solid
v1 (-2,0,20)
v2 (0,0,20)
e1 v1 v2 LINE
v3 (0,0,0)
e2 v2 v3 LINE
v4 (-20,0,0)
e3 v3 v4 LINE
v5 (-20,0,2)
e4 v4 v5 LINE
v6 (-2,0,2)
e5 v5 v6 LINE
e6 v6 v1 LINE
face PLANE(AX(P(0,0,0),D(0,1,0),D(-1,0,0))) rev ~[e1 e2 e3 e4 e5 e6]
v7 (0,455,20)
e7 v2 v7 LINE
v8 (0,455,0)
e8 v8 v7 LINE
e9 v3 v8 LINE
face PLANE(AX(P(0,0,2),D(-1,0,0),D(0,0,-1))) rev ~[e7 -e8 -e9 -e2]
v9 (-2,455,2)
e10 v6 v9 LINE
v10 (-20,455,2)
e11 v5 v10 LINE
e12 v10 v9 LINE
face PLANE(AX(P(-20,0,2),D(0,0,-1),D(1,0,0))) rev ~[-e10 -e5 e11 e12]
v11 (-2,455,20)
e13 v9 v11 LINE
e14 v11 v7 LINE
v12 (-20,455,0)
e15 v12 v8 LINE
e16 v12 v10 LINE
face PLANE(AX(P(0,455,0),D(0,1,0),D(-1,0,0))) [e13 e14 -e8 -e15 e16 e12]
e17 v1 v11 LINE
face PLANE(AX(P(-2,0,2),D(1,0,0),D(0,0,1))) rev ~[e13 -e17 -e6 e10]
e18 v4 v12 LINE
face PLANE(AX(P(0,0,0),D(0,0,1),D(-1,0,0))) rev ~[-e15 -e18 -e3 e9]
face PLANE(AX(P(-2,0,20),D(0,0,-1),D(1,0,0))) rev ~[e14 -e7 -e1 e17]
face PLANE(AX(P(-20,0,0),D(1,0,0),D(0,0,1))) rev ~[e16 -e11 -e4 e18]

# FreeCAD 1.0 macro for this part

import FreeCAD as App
import Part
import Sketcher
from FreeCAD import Vector

doc = App.newDocument("Part")
body = doc.addObject("PartDesign::Body", "Body")

# Sketch on XZ plane
sketch1 = body.newObject("Sketcher::SketchObject", "Sketch")
sketch1.AttachmentSupport = (doc.getObject("XZ_Plane"), [""])
sketch1.MapMode = "FlatFace"
sketch1.addGeometry(Part.LineSegment(Vector(0, 0, 0), Vector(-20, 0, 0)), False)
sketch1.addGeometry(Part.LineSegment(Vector(-20, 0, 0), Vector(-20, 2, 0)), False)
sketch1.addGeometry(Part.LineSegment(Vector(-20, 2, 0), Vector(-2, 2, 0)), False)
sketch1.addGeometry(Part.LineSegment(Vector(-2, 2, 0), Vector(-2, 20, 0)), False)
sketch1.addGeometry(Part.LineSegment(Vector(-2, 20, 0), Vector(0, 20, 0)), False)
sketch1.addGeometry(Part.LineSegment(Vector(0, 20, 0), Vector(0, 0, 0)), False)
sketch1.addConstraint(Sketcher.Constraint("Coincident", 0, 2, 1, 1))
sketch1.addConstraint(Sketcher.Constraint("Coincident", 1, 2, 2, 1))
sketch1.addConstraint(Sketcher.Constraint("Coincident", 2, 2, 3, 1))
sketch1.addConstraint(Sketcher.Constraint("Coincident", 3, 2, 4, 1))
sketch1.addConstraint(Sketcher.Constraint("Coincident", 4, 2, 5, 1))
sketch1.addConstraint(Sketcher.Constraint("Coincident", 5, 2, 0, 1))
sketch1.addConstraint(Sketcher.Constraint("Horizontal", 0))
sketch1.addConstraint(Sketcher.Constraint("Vertical", 1))
sketch1.addConstraint(Sketcher.Constraint("Horizontal", 2))
sketch1.addConstraint(Sketcher.Constraint("Vertical", 3))
sketch1.addConstraint(Sketcher.Constraint("Horizontal", 4))
sketch1.addConstraint(Sketcher.Constraint("Vertical", 5))
sketch1.addConstraint(Sketcher.Constraint("Coincident", 5, 2, -1, 1))
sketch1.addConstraint(Sketcher.Constraint("Equal", 4, 1))
sketch1.addConstraint(Sketcher.Constraint("Equal", 2, 3))
sketch1.addConstraint(Sketcher.Constraint("DistanceX", 0, 2, 0, 1, 20.0))
sketch1.addConstraint(Sketcher.Constraint("DistanceX", 4, 1, 4, 2, 2.0))
pad1 = body.newObject("PartDesign::Pad", "Pad")
pad1.Profile = sketch1
pad1.Length = 455
pad1.Reversed = True

doc.recompute()
